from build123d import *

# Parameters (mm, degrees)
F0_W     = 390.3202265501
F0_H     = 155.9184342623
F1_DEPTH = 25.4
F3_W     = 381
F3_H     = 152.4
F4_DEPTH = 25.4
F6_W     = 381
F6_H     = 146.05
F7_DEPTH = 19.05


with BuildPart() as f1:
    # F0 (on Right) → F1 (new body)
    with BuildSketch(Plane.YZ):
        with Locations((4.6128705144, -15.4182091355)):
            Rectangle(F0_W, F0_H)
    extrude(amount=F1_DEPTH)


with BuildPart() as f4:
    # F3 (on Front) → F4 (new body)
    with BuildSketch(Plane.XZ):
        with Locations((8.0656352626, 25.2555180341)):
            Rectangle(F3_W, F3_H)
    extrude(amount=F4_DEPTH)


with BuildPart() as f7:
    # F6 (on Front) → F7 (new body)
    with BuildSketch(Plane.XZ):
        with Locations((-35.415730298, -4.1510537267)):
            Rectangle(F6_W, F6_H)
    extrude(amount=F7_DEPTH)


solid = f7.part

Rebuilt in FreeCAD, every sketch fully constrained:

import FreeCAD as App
import Part
import Sketcher
Q = App.Units.Quantity

doc = App.newDocument("Part")
params = doc.addObject("Spreadsheet::Sheet", "Params")
for row, (alias, value) in enumerate([
    ("pad1_length", "1 in"),
    ("sketch2_width", "15 in"),
    ("sketch2_height", "6 in"),
    ("pad2_length", "1 in"),
    ("sketch3_width", "15 in"),
    ("sketch3_height", "5.75 in"),
    ("pad3_length", "0.75 in"),
], start=1):
    params.set(f"A{row}", alias)
    params.set(f"B{row}", "=" + value)
    params.setAlias(f"B{row}", alias)

body = doc.addObject("PartDesign::Body", "Body")

sketch1 = body.newObject("Sketcher::SketchObject", "Sketch")
sketch1.AttachmentSupport = (doc.getObject("YZ_Plane"), [""])
sketch1.MapMode = "FlatFace"
sketch1.addGeometry([
    Part.LineSegment(App.Vector(-190.547243, 62.541008, 0), App.Vector(-190.547243, -93.377426, 0)),
    Part.LineSegment(App.Vector(-190.547243, -93.377426, 0), App.Vector(199.772984, -93.377426, 0)),
    Part.LineSegment(App.Vector(199.772984, -93.377426, 0), App.Vector(199.772984, 62.541008, 0)),
    Part.LineSegment(App.Vector(199.772984, 62.541008, 0), App.Vector(-190.547243, 62.541008, 0)),
], False)
sketch1.addConstraint([
    Sketcher.Constraint("Coincident", 0, 2, 1, 1),
    Sketcher.Constraint("Coincident", 1, 2, 2, 1),
    Sketcher.Constraint("Coincident", 2, 2, 3, 1),
    Sketcher.Constraint("Coincident", 3, 2, 0, 1),
    Sketcher.Constraint("Vertical", 0),
    Sketcher.Constraint("Horizontal", 1),
    Sketcher.Constraint("Vertical", 2),
    Sketcher.Constraint("Horizontal", 3),
    Sketcher.Constraint("DistanceX", 1, 1, 1, 2, 390.320227),
    Sketcher.Constraint("DistanceY", 0, 2, 0, 1, 155.918434),
    Sketcher.Constraint("DistanceX", 0, 2, -1, 1, 190.547243),
    Sketcher.Constraint("DistanceY", 0, 2, -1, 1, 93.377426),
])
pad1 = body.newObject("PartDesign::Pad", "Pad")
pad1.Profile = sketch1
pad1.setExpression("Length", "Params.pad1_length")
body2 = doc.addObject("PartDesign::Body", "Body001")

sketch2 = body2.newObject("Sketcher::SketchObject", "Sketch001")
sketch2.AttachmentSupport = (doc.getObject("XZ_Plane001"), [""])
sketch2.MapMode = "FlatFace"
sketch2.addGeometry([
    Part.LineSegment(App.Vector(-182.434365, 101.455518, 0), App.Vector(-182.434365, -50.944482, 0)),
    Part.LineSegment(App.Vector(-182.434365, -50.944482, 0), App.Vector(198.565635, -50.944482, 0)),
    Part.LineSegment(App.Vector(198.565635, -50.944482, 0), App.Vector(198.565635, 101.455518, 0)),
    Part.LineSegment(App.Vector(198.565635, 101.455518, 0), App.Vector(-182.434365, 101.455518, 0)),
], False)
sketch2.addConstraint([
    Sketcher.Constraint("Coincident", 0, 2, 1, 1),
    Sketcher.Constraint("Coincident", 1, 2, 2, 1),
    Sketcher.Constraint("Coincident", 2, 2, 3, 1),
    Sketcher.Constraint("Coincident", 3, 2, 0, 1),
    Sketcher.Constraint("Vertical", 0),
    Sketcher.Constraint("Horizontal", 1),
    Sketcher.Constraint("Vertical", 2),
    Sketcher.Constraint("Horizontal", 3),
    Sketcher.Constraint("DistanceX", 1, 1, 1, 2, Q("15 in")),
    Sketcher.Constraint("DistanceY", 0, 2, 0, 1, Q("6 in")),
    Sketcher.Constraint("DistanceY", 0, 2, -1, 1, 50.944482),
    Sketcher.Constraint("DistanceX", 0, 2, -1, 1, 182.434365),
])
sketch2.setExpression("Constraints[8]", "Params.sketch2_width")
sketch2.setExpression("Constraints[9]", "Params.sketch2_height")
pad2 = body2.newObject("PartDesign::Pad", "Pad001")
pad2.Profile = sketch2
pad2.setExpression("Length", "Params.pad2_length")
body3 = doc.addObject("PartDesign::Body", "Body002")

sketch3 = body3.newObject("Sketcher::SketchObject", "Sketch002")
sketch3.AttachmentSupport = (doc.getObject("XZ_Plane002"), [""])
sketch3.MapMode = "FlatFace"
sketch3.addGeometry([
    Part.LineSegment(App.Vector(-225.91573, 68.873946, 0), App.Vector(-225.91573, -77.176054, 0)),
    Part.LineSegment(App.Vector(-225.91573, -77.176054, 0), App.Vector(155.08427, -77.176054, 0)),
    Part.LineSegment(App.Vector(155.08427, -77.176054, 0), App.Vector(155.08427, 68.873946, 0)),
    Part.LineSegment(App.Vector(155.08427, 68.873946, 0), App.Vector(-225.91573, 68.873946, 0)),
], False)
sketch3.addConstraint([
    Sketcher.Constraint("Coincident", 0, 2, 1, 1),
    Sketcher.Constraint("Coincident", 1, 2, 2, 1),
    Sketcher.Constraint("Coincident", 2, 2, 3, 1),
    Sketcher.Constraint("Coincident", 3, 2, 0, 1),
    Sketcher.Constraint("Vertical", 0),
    Sketcher.Constraint("Horizontal", 1),
    Sketcher.Constraint("Vertical", 2),
    Sketcher.Constraint("Horizontal", 3),
    Sketcher.Constraint("DistanceX", 1, 1, 1, 2, Q("15 in")),
    Sketcher.Constraint("DistanceY", 0, 2, 0, 1, Q("5.75 in")),
    Sketcher.Constraint("DistanceX", 0, 2, -1, 1, 225.91573),
    Sketcher.Constraint("DistanceY", 0, 2, -1, 1, 77.176054),
])
sketch3.setExpression("Constraints[8]", "Params.sketch3_width")
sketch3.setExpression("Constraints[9]", "Params.sketch3_height")
pad3 = body3.newObject("PartDesign::Pad", "Pad002")
pad3.Profile = sketch3
pad3.setExpression("Length", "Params.pad3_length")
body.Visibility = False
body2.Visibility = False

doc.recompute()
